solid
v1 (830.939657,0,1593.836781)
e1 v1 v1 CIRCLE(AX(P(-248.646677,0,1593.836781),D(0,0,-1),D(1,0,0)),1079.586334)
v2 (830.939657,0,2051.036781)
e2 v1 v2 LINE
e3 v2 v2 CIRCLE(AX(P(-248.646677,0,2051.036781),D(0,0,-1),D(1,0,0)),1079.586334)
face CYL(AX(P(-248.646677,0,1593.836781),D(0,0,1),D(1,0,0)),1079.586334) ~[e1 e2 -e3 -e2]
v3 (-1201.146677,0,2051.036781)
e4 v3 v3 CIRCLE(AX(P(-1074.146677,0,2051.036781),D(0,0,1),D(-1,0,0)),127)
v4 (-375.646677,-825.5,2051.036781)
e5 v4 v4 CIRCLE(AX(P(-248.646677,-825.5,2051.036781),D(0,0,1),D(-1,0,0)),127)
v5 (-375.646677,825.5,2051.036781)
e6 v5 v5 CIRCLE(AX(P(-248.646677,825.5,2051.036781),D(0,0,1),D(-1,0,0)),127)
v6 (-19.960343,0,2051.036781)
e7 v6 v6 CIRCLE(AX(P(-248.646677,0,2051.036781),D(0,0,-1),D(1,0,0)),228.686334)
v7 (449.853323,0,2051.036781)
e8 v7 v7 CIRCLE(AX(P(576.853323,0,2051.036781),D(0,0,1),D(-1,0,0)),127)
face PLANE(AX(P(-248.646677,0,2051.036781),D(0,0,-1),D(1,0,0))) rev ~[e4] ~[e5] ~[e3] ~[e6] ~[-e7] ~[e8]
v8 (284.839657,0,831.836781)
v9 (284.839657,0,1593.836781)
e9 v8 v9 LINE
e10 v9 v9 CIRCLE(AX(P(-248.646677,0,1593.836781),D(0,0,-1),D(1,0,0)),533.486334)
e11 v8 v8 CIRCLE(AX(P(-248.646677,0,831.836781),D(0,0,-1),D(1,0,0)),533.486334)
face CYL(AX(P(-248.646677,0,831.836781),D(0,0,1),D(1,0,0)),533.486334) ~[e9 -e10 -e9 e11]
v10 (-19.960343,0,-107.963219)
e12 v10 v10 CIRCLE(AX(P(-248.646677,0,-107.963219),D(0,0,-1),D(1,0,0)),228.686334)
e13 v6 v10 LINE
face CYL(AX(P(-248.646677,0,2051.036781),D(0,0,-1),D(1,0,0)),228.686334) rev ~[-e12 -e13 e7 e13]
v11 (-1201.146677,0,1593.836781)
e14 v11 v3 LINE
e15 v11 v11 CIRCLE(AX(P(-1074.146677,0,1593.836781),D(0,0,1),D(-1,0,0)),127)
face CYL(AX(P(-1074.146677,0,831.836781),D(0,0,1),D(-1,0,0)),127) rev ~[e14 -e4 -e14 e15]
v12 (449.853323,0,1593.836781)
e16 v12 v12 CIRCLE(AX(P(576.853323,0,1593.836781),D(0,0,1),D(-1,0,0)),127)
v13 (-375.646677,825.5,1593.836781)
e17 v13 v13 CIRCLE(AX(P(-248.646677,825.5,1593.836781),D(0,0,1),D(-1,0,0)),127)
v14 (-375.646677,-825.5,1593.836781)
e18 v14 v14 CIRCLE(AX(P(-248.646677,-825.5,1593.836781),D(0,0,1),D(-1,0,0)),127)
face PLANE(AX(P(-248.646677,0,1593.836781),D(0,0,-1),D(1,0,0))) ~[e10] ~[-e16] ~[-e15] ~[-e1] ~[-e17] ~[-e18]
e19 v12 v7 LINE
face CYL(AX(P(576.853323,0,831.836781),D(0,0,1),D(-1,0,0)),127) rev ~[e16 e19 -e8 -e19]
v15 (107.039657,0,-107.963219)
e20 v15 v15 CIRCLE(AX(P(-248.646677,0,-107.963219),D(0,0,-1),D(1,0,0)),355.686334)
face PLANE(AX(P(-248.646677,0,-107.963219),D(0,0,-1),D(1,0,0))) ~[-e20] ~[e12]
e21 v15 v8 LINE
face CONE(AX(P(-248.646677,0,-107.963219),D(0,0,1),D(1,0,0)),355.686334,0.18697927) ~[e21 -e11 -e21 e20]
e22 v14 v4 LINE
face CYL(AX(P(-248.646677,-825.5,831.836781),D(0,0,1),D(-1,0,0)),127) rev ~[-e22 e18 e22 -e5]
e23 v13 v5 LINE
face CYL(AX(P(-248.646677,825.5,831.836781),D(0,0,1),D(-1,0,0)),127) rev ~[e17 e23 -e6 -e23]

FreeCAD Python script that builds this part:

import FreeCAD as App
import Part
import Sketcher
from FreeCAD import Vector
Q = App.Units.Quantity


def add_polygon(sketch, points):
    """Adds a closed chain of lines whose ends are joined by coincident constraints."""
    first, n = sketch.GeometryCount, len(points)
    for a, b in zip(points, points[1:] + points[:1]):
        sketch.addGeometry(Part.LineSegment(App.Vector(*a, 0), App.Vector(*b, 0)), False)
    for i in range(n):
        sketch.addConstraint(Sketcher.Constraint("Coincident", first + i, 2, first + (i + 1) % n, 1))

doc = App.newDocument("Part")
body = doc.addObject("PartDesign::Body", "Body")

# Sketch on XZ plane
sketch1 = doc.addObject("Sketcher::SketchObject", "Sketch")
body.addObject(sketch1)
sketch1.AttachmentSupport = (doc.XZ_Plane, [""])
sketch1.MapMode = "FlatFace"
add_polygon(sketch1, [(-20, 2051), (-20, -108), (107, -108), (285, 832), (285, 1594), (831, 1594), (831, 2051)])  # lines 0-6
sketch1.addGeometry(Part.LineSegment(Vector(-249, 2051, 0), Vector(-249, -108, 0)), True)  # axis
sketch1.addConstraint(Sketcher.Constraint("Vertical", 0))
sketch1.addConstraint(Sketcher.Constraint("Horizontal", 1))
sketch1.addConstraint(Sketcher.Constraint("Vertical", 3))
sketch1.addConstraint(Sketcher.Constraint("Horizontal", 4))
sketch1.addConstraint(Sketcher.Constraint("Vertical", 5))
sketch1.addConstraint(Sketcher.Constraint("Horizontal", 6))
sketch1.addConstraint(Sketcher.Constraint("Vertical", 7))
sketch1.addConstraint(Sketcher.Constraint("Horizontal", 6, 2, 7, 1))
sketch1.addConstraint(Sketcher.Constraint("Horizontal", 1, 2, 7, 2))
sketch1.addConstraint(Sketcher.Constraint("DistanceX", 1, 1, 1, 2, Q("5 in")))
sketch1.addConstraint(Sketcher.Constraint("DistanceY", 0, 2, 0, 1, Q("85 in")))
sketch1.addConstraint(Sketcher.Constraint("DistanceY", 3, 1, 3, 2, Q("30 in")))
sketch1.addConstraint(Sketcher.Constraint("DistanceY", 5, 1, 5, 2, Q("18 in")))
sketch1.addConstraint(Sketcher.Constraint("DistanceX", 4, 1, 4, 2, Q("21.5 in")))
sketch1.addConstraint(Sketcher.Constraint("DistanceX", 6, 2, 6, 1, Q("33.5 in")))
sketch1.addConstraint(Sketcher.Constraint("DistanceY", 0, 2, -1, 1, 107.963219))
sketch1.addConstraint(Sketcher.Constraint("DistanceX", 0, 2, -1, 1, 19.960343))
sketch1.addConstraint(Sketcher.Constraint("DistanceX", 7, 1, -1, 1, 248.646677))
revolution = doc.addObject("PartDesign::Revolution", "Revolution")
body.addObject(revolution)
revolution.Profile = sketch1
revolution.ReferenceAxis = (sketch1, ["Axis0"])
revolution.Angle = 360

# Sketch on XY plane
sketch2 = doc.addObject("Sketcher::SketchObject", "Sketch001")
body.addObject(sketch2)
sketch2.AttachmentSupport = (doc.XY_Plane, [""])
sketch2.MapMode = "FlatFace"
sketch2.AttachmentOffset = App.Placement(Vector(0, 0, 1593.836781), App.Rotation())
sketch2.addGeometry(Part.Circle(Vector(-249, -826, 0), Vector(0, 0, 1), 127), False)
sketch2.addGeometry(Part.Circle(Vector(-1074, 0, 0), Vector(0, 0, 1), 127), False)
sketch2.addGeometry(Part.Circle(Vector(-249, 826, 0), Vector(0, 0, 1), 127), False)
sketch2.addGeometry(Part.Circle(Vector(577, 0, 0), Vector(0, 0, 1), 127), False)
sketch2.addConstraint(Sketcher.Constraint("Equal", 0, 1))
sketch2.addConstraint(Sketcher.Constraint("Equal", 1, 2))
sketch2.addConstraint(Sketcher.Constraint("Equal", 2, 3))
sketch2.addConstraint(Sketcher.Constraint("Symmetric", 0, 3, 2, 3, -1))
sketch2.addConstraint(Sketcher.Constraint("PointOnObject", 1, 3, -1))
sketch2.addConstraint(Sketcher.Constraint("PointOnObject", 3, 3, -1))
sketch2.addConstraint(Sketcher.Constraint("Diameter", 0, Q("10 in")))
sketch2.addConstraint(Sketcher.Constraint("DistanceY", 0, 3, 2, 3, Q("65 in")))
sketch2.addConstraint(Sketcher.Constraint("DistanceX", 1, 3, 3, 3, Q("65 in")))
sketch2.addConstraint(Sketcher.Constraint("DistanceX", 1, 3, 0, 3, Q("32.5 in")))
sketch2.addConstraint(Sketcher.Constraint("DistanceX", 0, 3, -1, 1, 248.646677))
doc.recompute()
hole = doc.addObject("PartDesign::Hole", "Hole")
body.addObject(hole)
hole.Profile = sketch2
hole.ThreadType = "None"
hole.Diameter = Q("10 in")
hole.DepthType = "Dimension"
hole.Depth = Q("30 in")
hole.DrillPoint = "Flat"
hole.Reversed = True

doc.recompute()
